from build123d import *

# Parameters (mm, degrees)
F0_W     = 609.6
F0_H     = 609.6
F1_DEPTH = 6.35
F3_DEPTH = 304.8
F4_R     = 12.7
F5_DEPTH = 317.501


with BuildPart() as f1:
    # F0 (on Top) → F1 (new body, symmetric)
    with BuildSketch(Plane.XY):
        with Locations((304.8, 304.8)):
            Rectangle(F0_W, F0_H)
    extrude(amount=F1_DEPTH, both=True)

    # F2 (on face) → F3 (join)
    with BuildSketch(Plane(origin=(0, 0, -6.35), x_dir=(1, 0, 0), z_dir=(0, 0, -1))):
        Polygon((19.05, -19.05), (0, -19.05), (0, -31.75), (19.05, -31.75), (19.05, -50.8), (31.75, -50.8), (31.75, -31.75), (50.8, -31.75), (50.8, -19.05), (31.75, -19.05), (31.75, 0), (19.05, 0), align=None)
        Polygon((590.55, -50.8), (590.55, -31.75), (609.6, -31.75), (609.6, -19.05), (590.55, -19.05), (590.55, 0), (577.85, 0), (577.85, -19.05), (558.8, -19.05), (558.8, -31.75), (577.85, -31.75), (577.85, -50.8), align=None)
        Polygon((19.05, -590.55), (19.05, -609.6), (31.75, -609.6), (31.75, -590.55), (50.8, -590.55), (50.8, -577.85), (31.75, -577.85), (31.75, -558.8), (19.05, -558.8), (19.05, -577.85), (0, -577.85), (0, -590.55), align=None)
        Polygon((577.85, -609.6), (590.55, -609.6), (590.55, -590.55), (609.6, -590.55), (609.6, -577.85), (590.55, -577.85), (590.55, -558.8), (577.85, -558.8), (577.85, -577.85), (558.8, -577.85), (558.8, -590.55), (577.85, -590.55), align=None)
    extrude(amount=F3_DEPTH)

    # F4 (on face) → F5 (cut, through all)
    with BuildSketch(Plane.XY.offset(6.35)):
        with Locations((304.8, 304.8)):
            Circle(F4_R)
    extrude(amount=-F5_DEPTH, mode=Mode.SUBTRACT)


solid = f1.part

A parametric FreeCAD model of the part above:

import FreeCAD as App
import Part
import Sketcher
Q = App.Units.Quantity

doc = App.newDocument("Part")
params = doc.addObject("Spreadsheet::Sheet", "Params")
for row, (alias, value) in enumerate([
    ("sketch1_width", "24 in"),
    ("pad1_length", "0.5 in"),
    ("sketch2_width", "0.5 in"),
    ("pad2_length", "12 in"),
    ("sketch3_diameter", "1 in"),
], start=1):
    params.set(f"A{row}", alias)
    params.set(f"B{row}", "=" + value)
    params.setAlias(f"B{row}", alias)

body = doc.addObject("PartDesign::Body", "Body")

# Sketch on XY plane
sketch1 = doc.addObject("Sketcher::SketchObject", "Sketch")
body.addObject(sketch1)
sketch1.AttachmentSupport = (doc.XY_Plane, [""])
sketch1.MapMode = "FlatFace"
sketch1.addGeometry([
    Part.LineSegment(App.Vector(0, 610, 0), App.Vector(0, 0, 0)),
    Part.LineSegment(App.Vector(0, 0, 0), App.Vector(610, 0, 0)),
    Part.LineSegment(App.Vector(610, 0, 0), App.Vector(610, 610, 0)),
    Part.LineSegment(App.Vector(610, 610, 0), App.Vector(0, 610, 0)),
], False)
sketch1.addConstraint([
    Sketcher.Constraint("Coincident", 0, 2, 1, 1),
    Sketcher.Constraint("Coincident", 1, 2, 2, 1),
    Sketcher.Constraint("Coincident", 2, 2, 3, 1),
    Sketcher.Constraint("Coincident", 3, 2, 0, 1),
    Sketcher.Constraint("Vertical", 0),
    Sketcher.Constraint("Horizontal", 1),
    Sketcher.Constraint("Vertical", 2),
    Sketcher.Constraint("Horizontal", 3),
    Sketcher.Constraint("Coincident", 0, 2, -1, 1),
    Sketcher.Constraint("Equal", 3, 0),
    Sketcher.Constraint("DistanceX", 1, 1, 1, 2, Q("24 in")),
])
sketch1.setExpression("Constraints[10]", "Params.sketch1_width")
pad1 = doc.addObject("PartDesign::Pad", "Pad")
body.addObject(pad1)
pad1.Profile = sketch1
pad1.setExpression("Length", "Params.pad1_length")
pad1.Midplane = True

# Sketch on XY plane
sketch2 = doc.addObject("Sketcher::SketchObject", "Sketch001")
body.addObject(sketch2)
sketch2.AttachmentSupport = (doc.XY_Plane, [""])
sketch2.MapMode = "FlatFace"
sketch2.AttachmentOffset = App.Placement(App.Vector(0, 0, -0.25 * 25.4), App.Rotation())
sketch2.addGeometry([
    Part.LineSegment(App.Vector(19, 19, 0), App.Vector(0, 19, 0)),  # 0
    Part.LineSegment(App.Vector(0, 19, 0), App.Vector(0, 32, 0)),  # 1
    Part.LineSegment(App.Vector(0, 32, 0), App.Vector(19, 32, 0)),  # 2
    Part.LineSegment(App.Vector(19, 32, 0), App.Vector(19, 51, 0)),  # 3
    Part.LineSegment(App.Vector(19, 51, 0), App.Vector(32, 51, 0)),  # 4
    Part.LineSegment(App.Vector(32, 51, 0), App.Vector(32, 32, 0)),  # 5
    Part.LineSegment(App.Vector(32, 32, 0), App.Vector(51, 32, 0)),  # 6
    Part.LineSegment(App.Vector(51, 32, 0), App.Vector(51, 19, 0)),  # 7
    Part.LineSegment(App.Vector(51, 19, 0), App.Vector(32, 19, 0)),  # 8
    Part.LineSegment(App.Vector(32, 19, 0), App.Vector(32, 0, 0)),  # 9
    Part.LineSegment(App.Vector(32, 0, 0), App.Vector(19, 0, 0)),  # 10
    Part.LineSegment(App.Vector(19, 0, 0), App.Vector(19, 19, 0)),  # 11
    Part.LineSegment(App.Vector(591, 51, 0), App.Vector(591, 32, 0)),  # 12
    Part.LineSegment(App.Vector(591, 32, 0), App.Vector(610, 32, 0)),  # 13
    Part.LineSegment(App.Vector(610, 32, 0), App.Vector(610, 19, 0)),  # 14
    Part.LineSegment(App.Vector(610, 19, 0), App.Vector(591, 19, 0)),  # 15
    Part.LineSegment(App.Vector(591, 19, 0), App.Vector(591, 0, 0)),  # 16
    Part.LineSegment(App.Vector(591, 0, 0), App.Vector(578, 0, 0)),  # 17
    Part.LineSegment(App.Vector(578, 0, 0), App.Vector(578, 19, 0)),  # 18
    Part.LineSegment(App.Vector(578, 19, 0), App.Vector(559, 19, 0)),  # 19
    Part.LineSegment(App.Vector(559, 19, 0), App.Vector(559, 32, 0)),  # 20
    Part.LineSegment(App.Vector(559, 32, 0), App.Vector(578, 32, 0)),  # 21
    Part.LineSegment(App.Vector(578, 32, 0), App.Vector(578, 51, 0)),  # 22
    Part.LineSegment(App.Vector(578, 51, 0), App.Vector(591, 51, 0)),  # 23
    Part.LineSegment(App.Vector(19, 591, 0), App.Vector(19, 610, 0)),  # 24
    Part.LineSegment(App.Vector(19, 610, 0), App.Vector(32, 610, 0)),  # 25
    Part.LineSegment(App.Vector(32, 610, 0), App.Vector(32, 591, 0)),  # 26
    Part.LineSegment(App.Vector(32, 591, 0), App.Vector(51, 591, 0)),  # 27
    Part.LineSegment(App.Vector(51, 591, 0), App.Vector(51, 578, 0)),  # 28
    Part.LineSegment(App.Vector(51, 578, 0), App.Vector(32, 578, 0)),  # 29
    Part.LineSegment(App.Vector(32, 578, 0), App.Vector(32, 559, 0)),  # 30
    Part.LineSegment(App.Vector(32, 559, 0), App.Vector(19, 559, 0)),  # 31
    Part.LineSegment(App.Vector(19, 559, 0), App.Vector(19, 578, 0)),  # 32
    Part.LineSegment(App.Vector(19, 578, 0), App.Vector(0, 578, 0)),  # 33
    Part.LineSegment(App.Vector(0, 578, 0), App.Vector(0, 591, 0)),  # 34
    Part.LineSegment(App.Vector(0, 591, 0), App.Vector(19, 591, 0)),  # 35
    Part.LineSegment(App.Vector(578, 610, 0), App.Vector(591, 610, 0)),  # 36
    Part.LineSegment(App.Vector(591, 610, 0), App.Vector(591, 591, 0)),  # 37
    Part.LineSegment(App.Vector(591, 591, 0), App.Vector(610, 591, 0)),  # 38
    Part.LineSegment(App.Vector(610, 591, 0), App.Vector(610, 578, 0)),  # 39
    Part.LineSegment(App.Vector(610, 578, 0), App.Vector(591, 578, 0)),  # 40
    Part.LineSegment(App.Vector(591, 578, 0), App.Vector(591, 559, 0)),  # 41
    Part.LineSegment(App.Vector(591, 559, 0), App.Vector(578, 559, 0)),  # 42
    Part.LineSegment(App.Vector(578, 559, 0), App.Vector(578, 578, 0)),  # 43
    Part.LineSegment(App.Vector(578, 578, 0), App.Vector(559, 578, 0)),  # 44
    Part.LineSegment(App.Vector(559, 578, 0), App.Vector(559, 591, 0)),  # 45
    Part.LineSegment(App.Vector(559, 591, 0), App.Vector(578, 591, 0)),  # 46
    Part.LineSegment(App.Vector(578, 591, 0), App.Vector(578, 610, 0)),  # 47
], False)
sketch2.addConstraint([
    Sketcher.Constraint("Coincident", 0, 2, 1, 1),
    Sketcher.Constraint("Coincident", 1, 2, 2, 1),
    Sketcher.Constraint("Coincident", 2, 2, 3, 1),
    Sketcher.Constraint("Coincident", 3, 2, 4, 1),
    Sketcher.Constraint("Coincident", 4, 2, 5, 1),
    Sketcher.Constraint("Coincident", 5, 2, 6, 1),
    Sketcher.Constraint("Coincident", 6, 2, 7, 1),
    Sketcher.Constraint("Coincident", 7, 2, 8, 1),
    Sketcher.Constraint("Coincident", 8, 2, 9, 1),
    Sketcher.Constraint("Coincident", 9, 2, 10, 1),
    Sketcher.Constraint("Coincident", 10, 2, 11, 1),
    Sketcher.Constraint("Coincident", 11, 2, 0, 1),
    Sketcher.Constraint("Coincident", 12, 2, 13, 1),
    Sketcher.Constraint("Coincident", 13, 2, 14, 1),
    Sketcher.Constraint("Coincident", 14, 2, 15, 1),
    Sketcher.Constraint("Coincident", 15, 2, 16, 1),
    Sketcher.Constraint("Coincident", 16, 2, 17, 1),
    Sketcher.Constraint("Coincident", 17, 2, 18, 1),
    Sketcher.Constraint("Coincident", 18, 2, 19, 1),
    Sketcher.Constraint("Coincident", 19, 2, 20, 1),
    Sketcher.Constraint("Coincident", 20, 2, 21, 1),
    Sketcher.Constraint("Coincident", 21, 2, 22, 1),
    Sketcher.Constraint("Coincident", 22, 2, 23, 1),
    Sketcher.Constraint("Coincident", 23, 2, 12, 1),
    Sketcher.Constraint("Coincident", 24, 2, 25, 1),
    Sketcher.Constraint("Coincident", 25, 2, 26, 1),
    Sketcher.Constraint("Coincident", 26, 2, 27, 1),
    Sketcher.Constraint("Coincident", 27, 2, 28, 1),
    Sketcher.Constraint("Coincident", 28, 2, 29, 1),
    Sketcher.Constraint("Coincident", 29, 2, 30, 1),
    Sketcher.Constraint("Coincident", 30, 2, 31, 1),
    Sketcher.Constraint("Coincident", 31, 2, 32, 1),
    Sketcher.Constraint("Coincident", 32, 2, 33, 1),
    Sketcher.Constraint("Coincident", 33, 2, 34, 1),
    Sketcher.Constraint("Coincident", 34, 2, 35, 1),
    Sketcher.Constraint("Coincident", 35, 2, 24, 1),
    Sketcher.Constraint("Coincident", 36, 2, 37, 1),
    Sketcher.Constraint("Coincident", 37, 2, 38, 1),
    Sketcher.Constraint("Coincident", 38, 2, 39, 1),
    Sketcher.Constraint("Coincident", 39, 2, 40, 1),
    Sketcher.Constraint("Coincident", 40, 2, 41, 1),
    Sketcher.Constraint("Coincident", 41, 2, 42, 1),
    Sketcher.Constraint("Coincident", 42, 2, 43, 1),
    Sketcher.Constraint("Coincident", 43, 2, 44, 1),
    Sketcher.Constraint("Coincident", 44, 2, 45, 1),
    Sketcher.Constraint("Coincident", 45, 2, 46, 1),
    Sketcher.Constraint("Coincident", 46, 2, 47, 1),
    Sketcher.Constraint("Coincident", 47, 2, 36, 1),
    Sketcher.Constraint("Horizontal", 0),
    Sketcher.Constraint("Vertical", 1),
    Sketcher.Constraint("Horizontal", 2),
    Sketcher.Constraint("Vertical", 3),
    Sketcher.Constraint("Horizontal", 4),
    Sketcher.Constraint("Vertical", 5),
    Sketcher.Constraint("Horizontal", 6),
    Sketcher.Constraint("Vertical", 7),
    Sketcher.Constraint("Horizontal", 8),
    Sketcher.Constraint("Vertical", 9),
    Sketcher.Constraint("Horizontal", 10),
    Sketcher.Constraint("Vertical", 11),
    Sketcher.Constraint("Vertical", 12),
    Sketcher.Constraint("Horizontal", 13),
    Sketcher.Constraint("Vertical", 14),
    Sketcher.Constraint("Horizontal", 15),
    Sketcher.Constraint("Vertical", 16),
    Sketcher.Constraint("Horizontal", 17),
    Sketcher.Constraint("Vertical", 18),
    Sketcher.Constraint("Horizontal", 19),
    Sketcher.Constraint("Vertical", 20),
    Sketcher.Constraint("Horizontal", 21),
    Sketcher.Constraint("Vertical", 22),
    Sketcher.Constraint("Horizontal", 23),
    Sketcher.Constraint("Vertical", 24),
    Sketcher.Constraint("Horizontal", 25),
    Sketcher.Constraint("Vertical", 26),
    Sketcher.Constraint("Horizontal", 27),
    Sketcher.Constraint("Vertical", 28),
    Sketcher.Constraint("Horizontal", 29),
    Sketcher.Constraint("Vertical", 30),
    Sketcher.Constraint("Horizontal", 31),
    Sketcher.Constraint("Vertical", 32),
    Sketcher.Constraint("Horizontal", 33),
    Sketcher.Constraint("Vertical", 34),
    Sketcher.Constraint("Horizontal", 35),
    Sketcher.Constraint("Horizontal", 36),
    Sketcher.Constraint("Vertical", 37),
    Sketcher.Constraint("Horizontal", 38),
    Sketcher.Constraint("Vertical", 39),
    Sketcher.Constraint("Horizontal", 40),
    Sketcher.Constraint("Vertical", 41),
    Sketcher.Constraint("Horizontal", 42),
    Sketcher.Constraint("Vertical", 43),
    Sketcher.Constraint("Horizontal", 44),
    Sketcher.Constraint("Vertical", 45),
    Sketcher.Constraint("Horizontal", 46),
    Sketcher.Constraint("Vertical", 47),
    Sketcher.Constraint("PointOnObject", 0, 2, -2),
    Sketcher.Constraint("PointOnObject", 9, 2, -1),
    Sketcher.Constraint("PointOnObject", 16, 2, -1),
    Sketcher.Constraint("PointOnObject", 33, 2, -2),
    Sketcher.Constraint("Horizontal", 2, 2, 5, 2),
    Sketcher.Constraint("Horizontal", 0, 2, 7, 2),
    Sketcher.Constraint("Horizontal", 6, 2, 12, 2),
    Sketcher.Constraint("Horizontal", 11, 2, 14, 2),
    Sketcher.Constraint("Horizontal", 15, 2, 18, 2),
    Sketcher.Constraint("Horizontal", 13, 2, 20, 2),
    Sketcher.Constraint("Horizontal", 4, 2, 22, 2),
    Sketcher.Constraint("Horizontal", 29, 2, 32, 2),
    Sketcher.Constraint("Horizontal", 27, 2, 34, 2),
    Sketcher.Constraint("Horizontal", 25, 2, 36, 2),
    Sketcher.Constraint("Horizontal", 35, 2, 37, 2),
    Sketcher.Constraint("Horizontal", 33, 2, 39, 2),
    Sketcher.Constraint("Horizontal", 31, 2, 41, 2),
    Sketcher.Constraint("Horizontal", 40, 2, 43, 2),
    Sketcher.Constraint("Horizontal", 38, 2, 45, 2),
    Sketcher.Constraint("Vertical", 5, 2, 8, 2),
    Sketcher.Constraint("Vertical", 3, 2, 10, 2),
    Sketcher.Constraint("Vertical", 12, 2, 15, 2),
    Sketcher.Constraint("Vertical", 18, 2, 21, 2),
    Sketcher.Constraint("Vertical", 11, 2, 24, 2),
    Sketcher.Constraint("Vertical", 9, 2, 25, 2),
    Sketcher.Constraint("Vertical", 7, 2, 27, 2),
    Sketcher.Constraint("Vertical", 26, 2, 29, 2),
    Sketcher.Constraint("Vertical", 24, 2, 31, 2),
    Sketcher.Constraint("Vertical", 23, 2, 36, 2),
    Sketcher.Constraint("Vertical", 14, 2, 38, 2),
    Sketcher.Constraint("Vertical", 37, 2, 40, 2),
    Sketcher.Constraint("Vertical", 22, 2, 42, 2),
    Sketcher.Constraint("Vertical", 20, 2, 44, 2),
    Sketcher.Constraint("Vertical", 43, 2, 46, 2),
    Sketcher.Constraint("Equal", 2, 6),
    Sketcher.Constraint("Equal", 8, 13),
    Sketcher.Constraint("Equal", 10, 17),
    Sketcher.Constraint("Equal", 15, 19),
    Sketcher.Constraint("Equal", 42, 1),
    Sketcher.Constraint("Equal", 46, 3),
    Sketcher.Constraint("Equal", 5, 9),
    Sketcher.Constraint("Equal", 22, 24),
    Sketcher.Constraint("Equal", 20, 28),
    Sketcher.Constraint("Equal", 26, 30),
    Sketcher.Constraint("DistanceX", 4, 1, 4, 2, Q("0.5 in")),
    Sketcher.Constraint("DistanceY", -1, 1, 3, 2, Q("2 in")),
    Sketcher.Constraint("DistanceX", -1, 1, 13, 2, Q("24 in")),
    Sketcher.Constraint("DistanceY", -1, 1, 24, 2, Q("24 in")),
])
sketch2.setExpression("Constraints[140]", "Params.sketch2_width")
pad2 = doc.addObject("PartDesign::Pad", "Pad001")
body.addObject(pad2)
pad2.Profile = sketch2
pad2.setExpression("Length", "Params.pad2_length")
pad2.Reversed = True

# Sketch on XY plane
sketch3 = doc.addObject("Sketcher::SketchObject", "Sketch002")
body.addObject(sketch3)
sketch3.AttachmentSupport = (doc.XY_Plane, [""])
sketch3.MapMode = "FlatFace"
sketch3.AttachmentOffset = App.Placement(App.Vector(0, 0, 0.25 * 25.4), App.Rotation())
sketch3.addGeometry(Part.Circle(App.Vector(305, 305, 0), App.Vector(0, 0, 1), 13), False)
sketch3.addConstraint([
    Sketcher.Constraint("Diameter", 0, Q("1 in")),
    Sketcher.Constraint("DistanceX", -1, 1, 0, 3, Q("12 in")),
    Sketcher.Constraint("DistanceY", -1, 1, 0, 3, Q("12 in")),
])
sketch3.setExpression("Constraints[0]", "Params.sketch3_diameter")
pocket1 = doc.addObject("PartDesign::Pocket", "Pocket")
body.addObject(pocket1)
pocket1.Profile = sketch3
pocket1.Type = "ThroughAll"

doc.recompute()
